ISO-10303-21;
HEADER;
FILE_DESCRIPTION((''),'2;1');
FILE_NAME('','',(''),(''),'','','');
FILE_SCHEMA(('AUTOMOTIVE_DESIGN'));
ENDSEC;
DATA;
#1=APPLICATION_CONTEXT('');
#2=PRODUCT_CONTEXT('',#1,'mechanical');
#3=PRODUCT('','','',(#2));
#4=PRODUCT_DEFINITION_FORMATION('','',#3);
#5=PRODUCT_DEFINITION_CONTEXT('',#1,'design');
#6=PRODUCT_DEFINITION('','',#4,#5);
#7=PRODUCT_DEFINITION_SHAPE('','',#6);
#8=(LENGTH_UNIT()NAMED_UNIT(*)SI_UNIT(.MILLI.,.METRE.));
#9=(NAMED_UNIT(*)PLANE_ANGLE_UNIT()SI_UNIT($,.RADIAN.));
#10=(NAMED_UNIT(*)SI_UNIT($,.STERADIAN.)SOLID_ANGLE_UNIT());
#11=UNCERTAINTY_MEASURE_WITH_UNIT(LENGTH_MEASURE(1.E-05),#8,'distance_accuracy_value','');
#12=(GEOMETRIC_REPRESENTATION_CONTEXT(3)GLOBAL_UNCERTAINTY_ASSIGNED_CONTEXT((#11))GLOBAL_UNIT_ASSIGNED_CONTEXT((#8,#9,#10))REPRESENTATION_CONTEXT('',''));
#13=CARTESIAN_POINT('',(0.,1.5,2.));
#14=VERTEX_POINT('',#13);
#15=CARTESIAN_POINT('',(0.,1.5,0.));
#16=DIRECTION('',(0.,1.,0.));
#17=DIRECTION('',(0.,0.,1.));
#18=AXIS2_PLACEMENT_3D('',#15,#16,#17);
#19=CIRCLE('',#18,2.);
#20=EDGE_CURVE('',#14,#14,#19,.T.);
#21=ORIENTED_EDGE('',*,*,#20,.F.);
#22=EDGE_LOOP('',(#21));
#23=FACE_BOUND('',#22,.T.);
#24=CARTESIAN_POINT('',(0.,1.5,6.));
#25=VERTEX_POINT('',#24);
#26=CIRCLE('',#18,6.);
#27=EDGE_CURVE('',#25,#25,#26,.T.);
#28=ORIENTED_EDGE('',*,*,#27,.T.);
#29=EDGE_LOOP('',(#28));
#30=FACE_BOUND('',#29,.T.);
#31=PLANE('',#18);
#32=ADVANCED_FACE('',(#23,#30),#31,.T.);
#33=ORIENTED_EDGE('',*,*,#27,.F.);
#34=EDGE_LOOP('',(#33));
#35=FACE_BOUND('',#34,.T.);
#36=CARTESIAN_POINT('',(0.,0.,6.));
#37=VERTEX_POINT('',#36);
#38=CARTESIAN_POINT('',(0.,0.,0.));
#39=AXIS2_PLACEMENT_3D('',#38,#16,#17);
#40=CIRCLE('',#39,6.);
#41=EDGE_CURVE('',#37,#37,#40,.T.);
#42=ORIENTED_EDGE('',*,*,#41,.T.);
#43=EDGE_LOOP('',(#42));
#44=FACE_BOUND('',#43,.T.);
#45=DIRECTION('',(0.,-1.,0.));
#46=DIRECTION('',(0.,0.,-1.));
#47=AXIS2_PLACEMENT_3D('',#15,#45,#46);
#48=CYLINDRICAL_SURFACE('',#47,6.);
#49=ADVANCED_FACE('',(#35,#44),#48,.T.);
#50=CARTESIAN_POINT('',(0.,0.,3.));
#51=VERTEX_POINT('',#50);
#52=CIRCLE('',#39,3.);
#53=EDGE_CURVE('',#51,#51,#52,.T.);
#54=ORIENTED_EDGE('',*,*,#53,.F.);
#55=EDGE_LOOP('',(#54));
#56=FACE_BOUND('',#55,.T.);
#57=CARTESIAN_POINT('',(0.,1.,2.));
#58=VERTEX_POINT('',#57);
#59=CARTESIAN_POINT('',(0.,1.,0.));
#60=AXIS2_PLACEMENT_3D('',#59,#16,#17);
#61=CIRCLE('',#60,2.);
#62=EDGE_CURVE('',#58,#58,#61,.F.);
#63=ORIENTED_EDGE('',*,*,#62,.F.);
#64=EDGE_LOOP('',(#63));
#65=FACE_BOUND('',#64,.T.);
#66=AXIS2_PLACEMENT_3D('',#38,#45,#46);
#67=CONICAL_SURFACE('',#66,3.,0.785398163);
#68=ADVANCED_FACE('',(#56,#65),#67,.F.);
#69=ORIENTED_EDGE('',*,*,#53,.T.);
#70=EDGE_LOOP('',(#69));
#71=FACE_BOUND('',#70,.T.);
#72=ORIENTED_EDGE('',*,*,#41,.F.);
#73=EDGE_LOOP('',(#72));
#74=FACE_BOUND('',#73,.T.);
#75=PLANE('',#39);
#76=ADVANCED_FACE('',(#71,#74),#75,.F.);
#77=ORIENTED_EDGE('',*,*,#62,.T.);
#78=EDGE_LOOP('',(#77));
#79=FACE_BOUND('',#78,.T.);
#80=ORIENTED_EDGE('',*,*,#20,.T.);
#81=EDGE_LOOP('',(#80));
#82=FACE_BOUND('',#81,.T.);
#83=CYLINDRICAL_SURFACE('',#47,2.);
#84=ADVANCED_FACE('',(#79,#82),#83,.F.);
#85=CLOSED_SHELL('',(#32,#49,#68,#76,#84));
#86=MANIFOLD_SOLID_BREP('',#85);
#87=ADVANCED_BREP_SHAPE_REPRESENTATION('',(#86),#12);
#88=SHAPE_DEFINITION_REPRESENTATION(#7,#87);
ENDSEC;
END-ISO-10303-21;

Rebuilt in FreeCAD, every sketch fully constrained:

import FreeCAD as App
import Part
import Sketcher
Q = App.Units.Quantity


def edges_at(feature, points):
    """Names of the edges that pass closest to the given points."""
    edges = feature.Shape.Edges
    near = lambda p: min(range(len(edges)), key=lambda i: edges[i].distToShape(Part.Vertex(*p))[0])
    return sorted({f"Edge{near(p) + 1}" for p in points})

doc = App.newDocument("Part")
body = doc.addObject("PartDesign::Body", "Body")

sketch1 = body.newObject("Sketcher::SketchObject", "Sketch")
sketch1.AttachmentSupport = (doc.getObject("XZ_Plane"), [""])
sketch1.MapMode = "FlatFace"
sketch1.addGeometry([
    Part.Circle(App.Vector(0, 0, 0), App.Vector(0, 0, 1), 6),
    Part.Circle(App.Vector(0, 0, 0), App.Vector(0, 0, 1), 2),
], False)
sketch1.addConstraint([
    Sketcher.Constraint("Coincident", 0, 3, -1, 1),
    Sketcher.Constraint("Coincident", 1, 3, -1, 1),
    Sketcher.Constraint("Diameter", 0, Q("12 mm")),
    Sketcher.Constraint("Diameter", 1, Q("4 mm")),
])
pad1 = body.newObject("PartDesign::Pad", "Pad")
pad1.Profile = sketch1
pad1.Length = 1.5
pad1.Reversed = True
doc.recompute()

chamfer = body.newObject("PartDesign::Chamfer", "Chamfer")
chamfer.Base = (pad1, edges_at(pad1, [(0, 0, -2)]))
chamfer.Size = 1

doc.recompute()
